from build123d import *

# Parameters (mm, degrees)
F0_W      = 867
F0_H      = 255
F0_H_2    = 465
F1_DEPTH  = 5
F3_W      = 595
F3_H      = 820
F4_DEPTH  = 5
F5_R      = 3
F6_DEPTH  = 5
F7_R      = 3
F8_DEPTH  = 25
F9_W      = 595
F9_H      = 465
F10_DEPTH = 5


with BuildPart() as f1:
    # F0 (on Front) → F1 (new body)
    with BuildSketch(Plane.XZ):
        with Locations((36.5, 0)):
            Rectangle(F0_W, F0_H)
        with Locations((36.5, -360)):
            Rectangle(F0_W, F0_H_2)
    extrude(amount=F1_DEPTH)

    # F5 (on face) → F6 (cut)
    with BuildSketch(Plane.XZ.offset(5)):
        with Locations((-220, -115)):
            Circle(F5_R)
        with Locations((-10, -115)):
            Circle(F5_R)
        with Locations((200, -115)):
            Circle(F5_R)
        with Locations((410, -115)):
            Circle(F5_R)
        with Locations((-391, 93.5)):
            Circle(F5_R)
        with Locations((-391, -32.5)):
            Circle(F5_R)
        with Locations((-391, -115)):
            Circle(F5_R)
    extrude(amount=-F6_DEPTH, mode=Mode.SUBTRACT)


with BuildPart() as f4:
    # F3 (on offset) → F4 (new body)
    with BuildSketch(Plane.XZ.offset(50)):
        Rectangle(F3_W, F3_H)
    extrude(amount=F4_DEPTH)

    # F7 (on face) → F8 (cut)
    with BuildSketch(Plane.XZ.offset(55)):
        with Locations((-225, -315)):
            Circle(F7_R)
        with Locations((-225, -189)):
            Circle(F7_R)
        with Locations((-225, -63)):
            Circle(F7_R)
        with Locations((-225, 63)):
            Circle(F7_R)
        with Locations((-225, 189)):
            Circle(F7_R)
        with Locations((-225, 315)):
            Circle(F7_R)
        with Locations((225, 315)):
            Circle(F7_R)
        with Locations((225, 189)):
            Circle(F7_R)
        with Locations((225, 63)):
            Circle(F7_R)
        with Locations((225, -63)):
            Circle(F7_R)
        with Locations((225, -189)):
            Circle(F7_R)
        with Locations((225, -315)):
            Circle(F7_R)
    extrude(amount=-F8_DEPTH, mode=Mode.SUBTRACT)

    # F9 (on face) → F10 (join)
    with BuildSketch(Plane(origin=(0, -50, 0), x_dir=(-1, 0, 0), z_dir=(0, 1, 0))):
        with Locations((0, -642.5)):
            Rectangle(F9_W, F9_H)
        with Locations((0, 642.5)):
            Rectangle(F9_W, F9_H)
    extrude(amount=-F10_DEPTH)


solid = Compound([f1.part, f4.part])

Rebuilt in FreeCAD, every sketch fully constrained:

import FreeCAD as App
import Part
import Sketcher
Q = App.Units.Quantity

doc = App.newDocument("Part")
params = doc.addObject("Spreadsheet::Sheet", "Params")
for row, (alias, value) in enumerate([
    ("sketch1_width", "867 mm"),
    ("sketch1_height", "720 mm"),
    ("pad1_length", "5 mm"),
    ("sketch2_diameter", "6 mm"),
    ("pocket1_length", "5 mm"),
    ("sketch3_width", "595 mm"),
    ("sketch3_height", "820 mm"),
    ("pad2_length", "5 mm"),
    ("sketch4_diameter", "6 mm"),
    ("pocket2_length", "25 mm"),
    ("sketch5_width", "595 mm"),
    ("sketch5_height", "465 mm"),
    ("pad3_length", "5 mm"),
], start=1):
    params.set(f"A{row}", alias)
    params.set(f"B{row}", "=" + value)
    params.setAlias(f"B{row}", alias)

body = doc.addObject("PartDesign::Body", "Body")

# Sketch on XZ plane
sketch1 = doc.addObject("Sketcher::SketchObject", "Sketch")
body.addObject(sketch1)
sketch1.AttachmentSupport = (doc.XZ_Plane, [""])
sketch1.MapMode = "FlatFace"
sketch1.addGeometry([
    Part.LineSegment(App.Vector(-397, 128, 0), App.Vector(-397, -592, 0)),
    Part.LineSegment(App.Vector(-397, -592, 0), App.Vector(470, -592, 0)),
    Part.LineSegment(App.Vector(470, -592, 0), App.Vector(470, 128, 0)),
    Part.LineSegment(App.Vector(470, 128, 0), App.Vector(-397, 128, 0)),
], False)
sketch1.addConstraint([
    Sketcher.Constraint("Coincident", 0, 2, 1, 1),
    Sketcher.Constraint("Coincident", 1, 2, 2, 1),
    Sketcher.Constraint("Coincident", 2, 2, 3, 1),
    Sketcher.Constraint("Coincident", 3, 2, 0, 1),
    Sketcher.Constraint("Vertical", 0),
    Sketcher.Constraint("Horizontal", 1),
    Sketcher.Constraint("Vertical", 2),
    Sketcher.Constraint("Horizontal", 3),
    Sketcher.Constraint("DistanceX", 1, 1, 1, 2, Q("867 mm")),
    Sketcher.Constraint("DistanceY", 0, 2, 0, 1, Q("720 mm")),
    Sketcher.Constraint("DistanceX", 0, 2, -1, 1, Q("397 mm")),
    Sketcher.Constraint("DistanceY", 0, 2, -1, 1, Q("592.5 mm")),
])
sketch1.setExpression("Constraints[8]", "Params.sketch1_width")
sketch1.setExpression("Constraints[9]", "Params.sketch1_height")
pad1 = doc.addObject("PartDesign::Pad", "Pad")
body.addObject(pad1)
pad1.Profile = sketch1
pad1.setExpression("Length", "Params.pad1_length")

# Sketch on XZ plane
sketch2 = doc.addObject("Sketcher::SketchObject", "Sketch001")
body.addObject(sketch2)
sketch2.AttachmentSupport = (doc.XZ_Plane, [""])
sketch2.MapMode = "FlatFace"
sketch2.AttachmentOffset = App.Placement(App.Vector(0, 0, 5), App.Rotation())
sketch2.addGeometry([
    Part.Circle(App.Vector(-220, -115, 0), App.Vector(0, 0, 1), 3),  # 0
    Part.Circle(App.Vector(-10, -115, 0), App.Vector(0, 0, 1), 3),  # 1
    Part.Circle(App.Vector(200, -115, 0), App.Vector(0, 0, 1), 3),  # 2
    Part.Circle(App.Vector(410, -115, 0), App.Vector(0, 0, 1), 3),  # 3
    Part.Circle(App.Vector(-391, 93.5, 0), App.Vector(0, 0, 1), 3),  # 4
    Part.Circle(App.Vector(-391, -32.5, 0), App.Vector(0, 0, 1), 3),  # 5
    Part.Circle(App.Vector(-391, -115, 0), App.Vector(0, 0, 1), 3),  # 6
], False)
sketch2.addConstraint([
    Sketcher.Constraint("Equal", 0, 1),
    Sketcher.Constraint("Equal", 1, 2),
    Sketcher.Constraint("Equal", 2, 3),
    Sketcher.Constraint("Equal", 3, 4),
    Sketcher.Constraint("Equal", 4, 5),
    Sketcher.Constraint("Equal", 5, 6),
    Sketcher.Constraint("Horizontal", 0, 3, 1, 3),
    Sketcher.Constraint("Horizontal", 1, 3, 2, 3),
    Sketcher.Constraint("Horizontal", 2, 3, 3, 3),
    Sketcher.Constraint("Horizontal", 3, 3, 6, 3),
    Sketcher.Constraint("Vertical", 4, 3, 5, 3),
    Sketcher.Constraint("Vertical", 5, 3, 6, 3),
    Sketcher.Constraint("Diameter", 0, Q("6 mm")),
    Sketcher.Constraint("DistanceX", 0, 3, -1, 1, Q("220 mm")),
    Sketcher.Constraint("DistanceY", 0, 3, -1, 1, Q("115 mm")),
    Sketcher.Constraint("DistanceX", 1, 3, -1, 1, Q("10 mm")),
    Sketcher.Constraint("DistanceX", -1, 1, 2, 3, Q("200 mm")),
    Sketcher.Constraint("DistanceX", -1, 1, 3, 3, Q("410 mm")),
    Sketcher.Constraint("DistanceX", 4, 3, -1, 1, Q("391 mm")),
    Sketcher.Constraint("DistanceY", 5, 3, 4, 3, Q("126 mm")),
    Sketcher.Constraint("DistanceY", -1, 1, 4, 3, Q("93.5 mm")),
])
sketch2.setExpression("Constraints[12]", "Params.sketch2_diameter")
pocket1 = doc.addObject("PartDesign::Pocket", "Pocket")
body.addObject(pocket1)
pocket1.Profile = sketch2
pocket1.setExpression("Length", "Params.pocket1_length")
body2 = doc.addObject("PartDesign::Body", "Body001")

# Sketch on XZ plane
sketch3 = doc.addObject("Sketcher::SketchObject", "Sketch002")
body2.addObject(sketch3)
sketch3.AttachmentSupport = (doc.getObject("XZ_Plane001"), [""])
sketch3.MapMode = "FlatFace"
sketch3.AttachmentOffset = App.Placement(App.Vector(0, 0, 50), App.Rotation())
sketch3.addGeometry([
    Part.LineSegment(App.Vector(-298, 410, 0), App.Vector(-298, -410, 0)),
    Part.LineSegment(App.Vector(-298, -410, 0), App.Vector(298, -410, 0)),
    Part.LineSegment(App.Vector(298, -410, 0), App.Vector(298, 410, 0)),
    Part.LineSegment(App.Vector(298, 410, 0), App.Vector(-298, 410, 0)),
], False)
sketch3.addConstraint([
    Sketcher.Constraint("Coincident", 0, 2, 1, 1),
    Sketcher.Constraint("Coincident", 1, 2, 2, 1),
    Sketcher.Constraint("Coincident", 2, 2, 3, 1),
    Sketcher.Constraint("Coincident", 3, 2, 0, 1),
    Sketcher.Constraint("Vertical", 0),
    Sketcher.Constraint("Horizontal", 1),
    Sketcher.Constraint("Vertical", 2),
    Sketcher.Constraint("Horizontal", 3),
    Sketcher.Constraint("Symmetric", 0, 2, 2, 2, -1, 1),
    Sketcher.Constraint("DistanceX", 1, 1, 1, 2, Q("595 mm")),
    Sketcher.Constraint("DistanceY", 0, 2, 0, 1, Q("820 mm")),
])
sketch3.setExpression("Constraints[9]", "Params.sketch3_width")
sketch3.setExpression("Constraints[10]", "Params.sketch3_height")
pad2 = doc.addObject("PartDesign::Pad", "Pad001")
body2.addObject(pad2)
pad2.Profile = sketch3
pad2.setExpression("Length", "Params.pad2_length")

# Sketch on XZ plane
sketch4 = doc.addObject("Sketcher::SketchObject", "Sketch003")
body2.addObject(sketch4)
sketch4.AttachmentSupport = (doc.getObject("XZ_Plane001"), [""])
sketch4.MapMode = "FlatFace"
sketch4.AttachmentOffset = App.Placement(App.Vector(0, 0, 55), App.Rotation())
sketch4.addGeometry([
    Part.Circle(App.Vector(-225, -315, 0), App.Vector(0, 0, 1), 3),  # 0
    Part.Circle(App.Vector(-225, -189, 0), App.Vector(0, 0, 1), 3),  # 1
    Part.Circle(App.Vector(-225, -63, 0), App.Vector(0, 0, 1), 3),  # 2
    Part.Circle(App.Vector(-225, 63, 0), App.Vector(0, 0, 1), 3),  # 3
    Part.Circle(App.Vector(-225, 189, 0), App.Vector(0, 0, 1), 3),  # 4
    Part.Circle(App.Vector(-225, 315, 0), App.Vector(0, 0, 1), 3),  # 5
    Part.Circle(App.Vector(225, 315, 0), App.Vector(0, 0, 1), 3),  # 6
    Part.Circle(App.Vector(225, 189, 0), App.Vector(0, 0, 1), 3),  # 7
    Part.Circle(App.Vector(225, 63, 0), App.Vector(0, 0, 1), 3),  # 8
    Part.Circle(App.Vector(225, -63, 0), App.Vector(0, 0, 1), 3),  # 9
    Part.Circle(App.Vector(225, -189, 0), App.Vector(0, 0, 1), 3),  # 10
    Part.Circle(App.Vector(225, -315, 0), App.Vector(0, 0, 1), 3),  # 11
], False)
sketch4.addConstraint([
    Sketcher.Constraint("Equal", 0, 1),
    Sketcher.Constraint("Equal", 1, 2),
    Sketcher.Constraint("Equal", 2, 3),
    Sketcher.Constraint("Equal", 3, 4),
    Sketcher.Constraint("Equal", 4, 5),
    Sketcher.Constraint("Equal", 5, 6),
    Sketcher.Constraint("Equal", 6, 7),
    Sketcher.Constraint("Equal", 7, 8),
    Sketcher.Constraint("Equal", 8, 9),
    Sketcher.Constraint("Equal", 9, 10),
    Sketcher.Constraint("Equal", 10, 11),
    Sketcher.Constraint("Symmetric", 0, 3, 6, 3, -1, 1),
    Sketcher.Constraint("Symmetric", 1, 3, 7, 3, -1, 1),
    Sketcher.Constraint("Symmetric", 2, 3, 8, 3, -1, 1),
    Sketcher.Constraint("Symmetric", 3, 3, 9, 3, -1, 1),
    Sketcher.Constraint("Symmetric", 4, 3, 10, 3, -1, 1),
    Sketcher.Constraint("Symmetric", 5, 3, 11, 3, -1, 1),
    Sketcher.Constraint("Symmetric", 5, 3, 6, 3, -2),
    Sketcher.Constraint("Symmetric", 4, 3, 7, 3, -2),
    Sketcher.Constraint("Symmetric", 3, 3, 8, 3, -2),
    Sketcher.Constraint("Vertical", 0, 3, 1, 3),
    Sketcher.Constraint("Vertical", 1, 3, 2, 3),
    Sketcher.Constraint("Diameter", 0, Q("6 mm")),
    Sketcher.Constraint("DistanceX", 0, 3, -1, 1, Q("225 mm")),
    Sketcher.Constraint("DistanceY", 0, 3, -1, 1, Q("315 mm")),
    Sketcher.Constraint("DistanceY", 1, 3, -1, 1, Q("189 mm")),
    Sketcher.Constraint("DistanceY", 2, 3, -1, 1, Q("63 mm")),
])
sketch4.setExpression("Constraints[22]", "Params.sketch4_diameter")
pocket2 = doc.addObject("PartDesign::Pocket", "Pocket001")
body2.addObject(pocket2)
pocket2.Profile = sketch4
pocket2.setExpression("Length", "Params.pocket2_length")

# Sketch on XZ plane
sketch5 = doc.addObject("Sketcher::SketchObject", "Sketch004")
body2.addObject(sketch5)
sketch5.AttachmentSupport = (doc.getObject("XZ_Plane001"), [""])
sketch5.MapMode = "FlatFace"
sketch5.AttachmentOffset = App.Placement(App.Vector(0, 0, 50), App.Rotation())
sketch5.addGeometry([
    Part.LineSegment(App.Vector(298, -410, 0), App.Vector(298, -875, 0)),  # 0
    Part.LineSegment(App.Vector(298, -875, 0), App.Vector(-298, -875, 0)),  # 1
    Part.LineSegment(App.Vector(-298, -875, 0), App.Vector(-298, -410, 0)),  # 2
    Part.LineSegment(App.Vector(-298, -410, 0), App.Vector(298, -410, 0)),  # 3
    Part.LineSegment(App.Vector(298, 875, 0), App.Vector(298, 410, 0)),  # 4
    Part.LineSegment(App.Vector(298, 410, 0), App.Vector(-298, 410, 0)),  # 5
    Part.LineSegment(App.Vector(-298, 410, 0), App.Vector(-298, 875, 0)),  # 6
    Part.LineSegment(App.Vector(-298, 875, 0), App.Vector(298, 875, 0)),  # 7
], False)
sketch5.addConstraint([
    Sketcher.Constraint("Coincident", 0, 2, 1, 1),
    Sketcher.Constraint("Coincident", 1, 2, 2, 1),
    Sketcher.Constraint("Coincident", 2, 2, 3, 1),
    Sketcher.Constraint("Coincident", 3, 2, 0, 1),
    Sketcher.Constraint("Coincident", 4, 2, 5, 1),
    Sketcher.Constraint("Coincident", 5, 2, 6, 1),
    Sketcher.Constraint("Coincident", 6, 2, 7, 1),
    Sketcher.Constraint("Coincident", 7, 2, 4, 1),
    Sketcher.Constraint("Vertical", 0),
    Sketcher.Constraint("Horizontal", 1),
    Sketcher.Constraint("Vertical", 2),
    Sketcher.Constraint("Horizontal", 3),
    Sketcher.Constraint("Vertical", 4),
    Sketcher.Constraint("Horizontal", 5),
    Sketcher.Constraint("Vertical", 6),
    Sketcher.Constraint("Horizontal", 7),
    Sketcher.Constraint("Symmetric", 2, 2, 4, 2, -1, 1),
    Sketcher.Constraint("Symmetric", 0, 2, 6, 2, -1, 1),
    Sketcher.Constraint("Vertical", 3, 2, 4, 2),
    Sketcher.Constraint("DistanceX", 1, 2, 1, 1, Q("595 mm")),
    Sketcher.Constraint("DistanceY", 0, 2, 0, 1, Q("465 mm")),
    Sketcher.Constraint("DistanceY", 0, 2, -1, 1, Q("875 mm")),
])
sketch5.setExpression("Constraints[19]", "Params.sketch5_width")
sketch5.setExpression("Constraints[20]", "Params.sketch5_height")
pad3 = doc.addObject("PartDesign::Pad", "Pad002")
body2.addObject(pad3)
pad3.Profile = sketch5
pad3.setExpression("Length", "Params.pad3_length")

doc.recompute()
